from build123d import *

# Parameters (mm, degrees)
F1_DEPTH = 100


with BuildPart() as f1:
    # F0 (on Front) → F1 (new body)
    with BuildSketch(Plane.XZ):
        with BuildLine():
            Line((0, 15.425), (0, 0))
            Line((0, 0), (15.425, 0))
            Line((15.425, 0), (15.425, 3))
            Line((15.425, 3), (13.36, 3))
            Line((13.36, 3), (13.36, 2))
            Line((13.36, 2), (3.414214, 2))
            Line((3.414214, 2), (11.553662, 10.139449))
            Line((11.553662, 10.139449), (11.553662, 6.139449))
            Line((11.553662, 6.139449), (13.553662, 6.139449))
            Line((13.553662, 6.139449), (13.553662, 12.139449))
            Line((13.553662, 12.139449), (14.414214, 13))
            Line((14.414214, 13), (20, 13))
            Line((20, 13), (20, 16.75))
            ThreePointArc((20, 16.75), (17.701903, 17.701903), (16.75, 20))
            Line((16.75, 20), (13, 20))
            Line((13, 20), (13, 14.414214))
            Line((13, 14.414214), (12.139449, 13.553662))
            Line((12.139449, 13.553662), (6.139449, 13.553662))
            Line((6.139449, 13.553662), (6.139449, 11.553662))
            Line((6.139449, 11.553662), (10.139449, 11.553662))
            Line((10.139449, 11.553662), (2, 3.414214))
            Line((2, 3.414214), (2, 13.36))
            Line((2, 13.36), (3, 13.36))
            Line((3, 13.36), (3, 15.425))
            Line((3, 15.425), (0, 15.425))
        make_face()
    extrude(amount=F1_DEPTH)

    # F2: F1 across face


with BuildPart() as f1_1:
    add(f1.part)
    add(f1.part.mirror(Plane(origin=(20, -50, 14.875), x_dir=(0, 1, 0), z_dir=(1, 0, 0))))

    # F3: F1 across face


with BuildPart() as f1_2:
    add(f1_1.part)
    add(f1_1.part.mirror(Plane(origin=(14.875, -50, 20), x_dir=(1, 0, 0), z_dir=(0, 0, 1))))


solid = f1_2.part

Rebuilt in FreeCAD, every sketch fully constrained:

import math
import FreeCAD as App
import Part
import Sketcher
Q = App.Units.Quantity

doc = App.newDocument("Part")
params = doc.addObject("Spreadsheet::Sheet", "Params")
for row, (alias, value) in enumerate([
    ("sketch1_width", "2 mm"),
    ("sketch1_width2", "6 mm"),
    ("sketch1_width3", "4 mm"),
    ("sketch1_width4", "1 mm"),
    ("sketch1_width5", "3 mm"),
    ("pad1_length", "100 mm"),
], start=1):
    params.set(f"A{row}", alias)
    params.set(f"B{row}", "=" + value)
    params.setAlias(f"B{row}", alias)

body = doc.addObject("PartDesign::Body", "Body")

# Sketch on XZ plane
sketch1 = doc.addObject("Sketcher::SketchObject", "Sketch")
body.addObject(sketch1)
sketch1.AttachmentSupport = (doc.XZ_Plane, [""])
sketch1.MapMode = "FlatFace"
sketch1.addGeometry(Part.LineSegment(App.Vector(0, 15.4, 0), App.Vector(0, 0, 0)), False)
sketch1.addGeometry(Part.LineSegment(App.Vector(0, 0, 0), App.Vector(15.4, 0, 0)), False)
sketch1.addGeometry(Part.LineSegment(App.Vector(15.4, 0, 0), App.Vector(15.4, 3, 0)), False)
sketch1.addGeometry(Part.LineSegment(App.Vector(15.4, 3, 0), App.Vector(13.4, 3, 0)), False)
sketch1.addGeometry(Part.LineSegment(App.Vector(13.4, 3, 0), App.Vector(13.4, 2, 0)), False)
sketch1.addGeometry(Part.LineSegment(App.Vector(13.4, 2, 0), App.Vector(3.4, 2, 0)), False)
sketch1.addGeometry(Part.LineSegment(App.Vector(3.4, 2, 0), App.Vector(11.6, 10.1, 0)), False)
sketch1.addGeometry(Part.LineSegment(App.Vector(11.6, 10.1, 0), App.Vector(11.6, 6.1, 0)), False)
sketch1.addGeometry(Part.LineSegment(App.Vector(11.6, 6.1, 0), App.Vector(13.6, 6.1, 0)), False)
sketch1.addGeometry(Part.LineSegment(App.Vector(13.6, 6.1, 0), App.Vector(13.6, 12.1, 0)), False)
sketch1.addGeometry(Part.LineSegment(App.Vector(13.6, 12.1, 0), App.Vector(14.4, 13, 0)), False)
sketch1.addGeometry(Part.LineSegment(App.Vector(14.4, 13, 0), App.Vector(20, 13, 0)), False)
sketch1.addGeometry(Part.LineSegment(App.Vector(20, 13, 0), App.Vector(20, 16.8, 0)), False)
sketch1.addGeometry(Part.ArcOfCircle(Part.Circle(App.Vector(20, 20, 0), App.Vector(0, 0, 1), 3.3), math.radians(-180), math.radians(-90)), False)
sketch1.addGeometry(Part.LineSegment(App.Vector(16.8, 20, 0), App.Vector(13, 20, 0)), False)
sketch1.addGeometry(Part.LineSegment(App.Vector(13, 20, 0), App.Vector(13, 14.4, 0)), False)
sketch1.addGeometry(Part.LineSegment(App.Vector(13, 14.4, 0), App.Vector(12.1, 13.6, 0)), False)
sketch1.addGeometry(Part.LineSegment(App.Vector(12.1, 13.6, 0), App.Vector(6.1, 13.6, 0)), False)
sketch1.addGeometry(Part.LineSegment(App.Vector(6.1, 13.6, 0), App.Vector(6.1, 11.6, 0)), False)
sketch1.addGeometry(Part.LineSegment(App.Vector(6.1, 11.6, 0), App.Vector(10.1, 11.6, 0)), False)
sketch1.addGeometry(Part.LineSegment(App.Vector(10.1, 11.6, 0), App.Vector(2, 3.4, 0)), False)
sketch1.addGeometry(Part.LineSegment(App.Vector(2, 3.4, 0), App.Vector(2, 13.4, 0)), False)
sketch1.addGeometry(Part.LineSegment(App.Vector(2, 13.4, 0), App.Vector(3, 13.4, 0)), False)
sketch1.addGeometry(Part.LineSegment(App.Vector(3, 13.4, 0), App.Vector(3, 15.4, 0)), False)
sketch1.addGeometry(Part.LineSegment(App.Vector(3, 15.4, 0), App.Vector(0, 15.4, 0)), False)
sketch1.addConstraint(Sketcher.Constraint("Coincident", 0, 2, 1, 1))
sketch1.addConstraint(Sketcher.Constraint("Coincident", 1, 2, 2, 1))
sketch1.addConstraint(Sketcher.Constraint("Coincident", 2, 2, 3, 1))
sketch1.addConstraint(Sketcher.Constraint("Coincident", 3, 2, 4, 1))
sketch1.addConstraint(Sketcher.Constraint("Coincident", 4, 2, 5, 1))
sketch1.addConstraint(Sketcher.Constraint("Coincident", 5, 2, 6, 1))
sketch1.addConstraint(Sketcher.Constraint("Coincident", 6, 2, 7, 1))
sketch1.addConstraint(Sketcher.Constraint("Coincident", 7, 2, 8, 1))
sketch1.addConstraint(Sketcher.Constraint("Coincident", 8, 2, 9, 1))
sketch1.addConstraint(Sketcher.Constraint("Coincident", 9, 2, 10, 1))
sketch1.addConstraint(Sketcher.Constraint("Coincident", 10, 2, 11, 1))
sketch1.addConstraint(Sketcher.Constraint("Coincident", 11, 2, 12, 1))
sketch1.addConstraint(Sketcher.Constraint("Coincident", 12, 2, 13, 2))
sketch1.addConstraint(Sketcher.Constraint("Coincident", 13, 1, 14, 1))
sketch1.addConstraint(Sketcher.Constraint("Coincident", 14, 2, 15, 1))
sketch1.addConstraint(Sketcher.Constraint("Coincident", 15, 2, 16, 1))
sketch1.addConstraint(Sketcher.Constraint("Coincident", 16, 2, 17, 1))
sketch1.addConstraint(Sketcher.Constraint("Coincident", 17, 2, 18, 1))
sketch1.addConstraint(Sketcher.Constraint("Coincident", 18, 2, 19, 1))
sketch1.addConstraint(Sketcher.Constraint("Coincident", 19, 2, 20, 1))
sketch1.addConstraint(Sketcher.Constraint("Coincident", 20, 2, 21, 1))
sketch1.addConstraint(Sketcher.Constraint("Coincident", 21, 2, 22, 1))
sketch1.addConstraint(Sketcher.Constraint("Coincident", 22, 2, 23, 1))
sketch1.addConstraint(Sketcher.Constraint("Coincident", 23, 2, 24, 1))
sketch1.addConstraint(Sketcher.Constraint("Coincident", 24, 2, 0, 1))
sketch1.addConstraint(Sketcher.Constraint("Vertical", 0))
sketch1.addConstraint(Sketcher.Constraint("Horizontal", 1))
sketch1.addConstraint(Sketcher.Constraint("Vertical", 2))
sketch1.addConstraint(Sketcher.Constraint("Horizontal", 3))
sketch1.addConstraint(Sketcher.Constraint("Vertical", 4))
sketch1.addConstraint(Sketcher.Constraint("Horizontal", 5))
sketch1.addConstraint(Sketcher.Constraint("Vertical", 7))
sketch1.addConstraint(Sketcher.Constraint("Horizontal", 8))
sketch1.addConstraint(Sketcher.Constraint("Vertical", 9))
sketch1.addConstraint(Sketcher.Constraint("Horizontal", 11))
sketch1.addConstraint(Sketcher.Constraint("Vertical", 12))
sketch1.addConstraint(Sketcher.Constraint("Horizontal", 14))
sketch1.addConstraint(Sketcher.Constraint("Vertical", 15))
sketch1.addConstraint(Sketcher.Constraint("Horizontal", 17))
sketch1.addConstraint(Sketcher.Constraint("Vertical", 18))
sketch1.addConstraint(Sketcher.Constraint("Horizontal", 19))
sketch1.addConstraint(Sketcher.Constraint("Vertical", 21))
sketch1.addConstraint(Sketcher.Constraint("Horizontal", 22))
sketch1.addConstraint(Sketcher.Constraint("Vertical", 23))
sketch1.addConstraint(Sketcher.Constraint("Horizontal", 24))
sketch1.addConstraint(Sketcher.Constraint("Coincident", 0, 2, -1, 1))
sketch1.addConstraint(Sketcher.Constraint("Parallel", 6, 10))
sketch1.addConstraint(Sketcher.Constraint("Parallel", 10, 16))
sketch1.addConstraint(Sketcher.Constraint("Parallel", 16, 20))
sketch1.addConstraint(Sketcher.Constraint("Vertical", 13, 3, 11, 2))
sketch1.addConstraint(Sketcher.Constraint("Equal", 1, 0))
sketch1.addConstraint(Sketcher.Constraint("Equal", 24, 2))
sketch1.addConstraint(Sketcher.Constraint("Equal", 22, 4))
sketch1.addConstraint(Sketcher.Constraint("Equal", 19, 7))
sketch1.addConstraint(Sketcher.Constraint("Equal", 17, 9))
sketch1.addConstraint(Sketcher.Constraint("Equal", 14, 12))
sketch1.addConstraint(Sketcher.Constraint("Equal", 11, 15))
sketch1.addConstraint(Sketcher.Constraint("Equal", 8, 18))
sketch1.addConstraint(Sketcher.Constraint("Equal", 5, 21))
sketch1.addConstraint(Sketcher.Constraint("Equal", 3, 23))
sketch1.addConstraint(Sketcher.Constraint("Equal", 10, 16))
sketch1.addConstraint(Sketcher.Constraint("Equal", 6, 20))
sketch1.addConstraint(Sketcher.Constraint("DistanceX", 8, 1, 8, 2, 2.0))
sketch1.addConstraint(Sketcher.Constraint("DistanceX", 17, 2, 17, 1, 6.0))
sketch1.addConstraint(Sketcher.Constraint("DistanceX", 19, 1, 19, 2, 4.0))
sketch1.addConstraint(Sketcher.Constraint("DistanceX", 22, 1, 22, 2, 1.0))
sketch1.addConstraint(Sketcher.Constraint("DistanceX", 24, 2, 24, 1, 3.0))
sketch1.addConstraint(Sketcher.Constraint("Angle", 6, Q("45.000004 deg")))
sketch1.addConstraint(Sketcher.Constraint("Radius", 13, 3.25))
sketch1.addConstraint(Sketcher.Constraint("DistanceX", -1, 1, 13, 3, 20.0))
sketch1.addConstraint(Sketcher.Constraint("DistanceY", -1, 1, 10, 2, 13.0))
sketch1.addConstraint(Sketcher.Constraint("DistanceX", 1, 1, 1, 2, 15.425))
sketch1.addConstraint(Sketcher.Constraint("DistanceX", 3, 2, 3, 1, 2.065))
sketch1.addConstraint(Sketcher.Constraint("Distance", 6, 11.510918))
sketch1.addConstraint(Sketcher.Constraint("DistanceX", 5, 2, 5, 1, 9.945786))
sketch1.setExpression("Constraints[62]", "Params.sketch1_width")
sketch1.setExpression("Constraints[63]", "Params.sketch1_width2")
sketch1.setExpression("Constraints[64]", "Params.sketch1_width3")
sketch1.setExpression("Constraints[65]", "Params.sketch1_width4")
sketch1.setExpression("Constraints[66]", "Params.sketch1_width5")
pad1 = doc.addObject("PartDesign::Pad", "Pad")
body.addObject(pad1)
pad1.Profile = sketch1
pad1.setExpression("Length", "Params.pad1_length")
body2 = doc.addObject("PartDesign::Body", "Body001")
doc.recompute()

body2.BaseFeature = body
doc.recompute()

mirroring = doc.addObject("Part::Mirroring", "Mirroring")
mirroring.Source = body
mirroring.Base = App.Vector(20, -50, 14.875)
mirroring.Normal = App.Vector(1, 0, 0)
body3 = doc.addObject("PartDesign::Body", "Body002")
body3.BaseFeature = mirroring
boolean = doc.addObject("PartDesign::Boolean", "Boolean")
body2.addObject(boolean)
boolean.Type = "Fuse"
boolean.addObjects([body3])
doc.recompute()
body4 = doc.addObject("PartDesign::Body", "Body003")
doc.recompute()

body4.BaseFeature = body2
doc.recompute()

mirroring2 = doc.addObject("Part::Mirroring", "Mirroring001")
mirroring2.Source = body2
mirroring2.Base = App.Vector(14.875, -50, 20)
mirroring2.Normal = App.Vector(0, 0, 1)
body5 = doc.addObject("PartDesign::Body", "Body004")
body5.BaseFeature = mirroring2
boolean2 = doc.addObject("PartDesign::Boolean", "Boolean001")
body4.addObject(boolean2)
boolean2.Type = "Fuse"
boolean2.addObjects([body5])
doc.recompute()
mirroring.Visibility = False
mirroring2.Visibility = False

doc.recompute()
